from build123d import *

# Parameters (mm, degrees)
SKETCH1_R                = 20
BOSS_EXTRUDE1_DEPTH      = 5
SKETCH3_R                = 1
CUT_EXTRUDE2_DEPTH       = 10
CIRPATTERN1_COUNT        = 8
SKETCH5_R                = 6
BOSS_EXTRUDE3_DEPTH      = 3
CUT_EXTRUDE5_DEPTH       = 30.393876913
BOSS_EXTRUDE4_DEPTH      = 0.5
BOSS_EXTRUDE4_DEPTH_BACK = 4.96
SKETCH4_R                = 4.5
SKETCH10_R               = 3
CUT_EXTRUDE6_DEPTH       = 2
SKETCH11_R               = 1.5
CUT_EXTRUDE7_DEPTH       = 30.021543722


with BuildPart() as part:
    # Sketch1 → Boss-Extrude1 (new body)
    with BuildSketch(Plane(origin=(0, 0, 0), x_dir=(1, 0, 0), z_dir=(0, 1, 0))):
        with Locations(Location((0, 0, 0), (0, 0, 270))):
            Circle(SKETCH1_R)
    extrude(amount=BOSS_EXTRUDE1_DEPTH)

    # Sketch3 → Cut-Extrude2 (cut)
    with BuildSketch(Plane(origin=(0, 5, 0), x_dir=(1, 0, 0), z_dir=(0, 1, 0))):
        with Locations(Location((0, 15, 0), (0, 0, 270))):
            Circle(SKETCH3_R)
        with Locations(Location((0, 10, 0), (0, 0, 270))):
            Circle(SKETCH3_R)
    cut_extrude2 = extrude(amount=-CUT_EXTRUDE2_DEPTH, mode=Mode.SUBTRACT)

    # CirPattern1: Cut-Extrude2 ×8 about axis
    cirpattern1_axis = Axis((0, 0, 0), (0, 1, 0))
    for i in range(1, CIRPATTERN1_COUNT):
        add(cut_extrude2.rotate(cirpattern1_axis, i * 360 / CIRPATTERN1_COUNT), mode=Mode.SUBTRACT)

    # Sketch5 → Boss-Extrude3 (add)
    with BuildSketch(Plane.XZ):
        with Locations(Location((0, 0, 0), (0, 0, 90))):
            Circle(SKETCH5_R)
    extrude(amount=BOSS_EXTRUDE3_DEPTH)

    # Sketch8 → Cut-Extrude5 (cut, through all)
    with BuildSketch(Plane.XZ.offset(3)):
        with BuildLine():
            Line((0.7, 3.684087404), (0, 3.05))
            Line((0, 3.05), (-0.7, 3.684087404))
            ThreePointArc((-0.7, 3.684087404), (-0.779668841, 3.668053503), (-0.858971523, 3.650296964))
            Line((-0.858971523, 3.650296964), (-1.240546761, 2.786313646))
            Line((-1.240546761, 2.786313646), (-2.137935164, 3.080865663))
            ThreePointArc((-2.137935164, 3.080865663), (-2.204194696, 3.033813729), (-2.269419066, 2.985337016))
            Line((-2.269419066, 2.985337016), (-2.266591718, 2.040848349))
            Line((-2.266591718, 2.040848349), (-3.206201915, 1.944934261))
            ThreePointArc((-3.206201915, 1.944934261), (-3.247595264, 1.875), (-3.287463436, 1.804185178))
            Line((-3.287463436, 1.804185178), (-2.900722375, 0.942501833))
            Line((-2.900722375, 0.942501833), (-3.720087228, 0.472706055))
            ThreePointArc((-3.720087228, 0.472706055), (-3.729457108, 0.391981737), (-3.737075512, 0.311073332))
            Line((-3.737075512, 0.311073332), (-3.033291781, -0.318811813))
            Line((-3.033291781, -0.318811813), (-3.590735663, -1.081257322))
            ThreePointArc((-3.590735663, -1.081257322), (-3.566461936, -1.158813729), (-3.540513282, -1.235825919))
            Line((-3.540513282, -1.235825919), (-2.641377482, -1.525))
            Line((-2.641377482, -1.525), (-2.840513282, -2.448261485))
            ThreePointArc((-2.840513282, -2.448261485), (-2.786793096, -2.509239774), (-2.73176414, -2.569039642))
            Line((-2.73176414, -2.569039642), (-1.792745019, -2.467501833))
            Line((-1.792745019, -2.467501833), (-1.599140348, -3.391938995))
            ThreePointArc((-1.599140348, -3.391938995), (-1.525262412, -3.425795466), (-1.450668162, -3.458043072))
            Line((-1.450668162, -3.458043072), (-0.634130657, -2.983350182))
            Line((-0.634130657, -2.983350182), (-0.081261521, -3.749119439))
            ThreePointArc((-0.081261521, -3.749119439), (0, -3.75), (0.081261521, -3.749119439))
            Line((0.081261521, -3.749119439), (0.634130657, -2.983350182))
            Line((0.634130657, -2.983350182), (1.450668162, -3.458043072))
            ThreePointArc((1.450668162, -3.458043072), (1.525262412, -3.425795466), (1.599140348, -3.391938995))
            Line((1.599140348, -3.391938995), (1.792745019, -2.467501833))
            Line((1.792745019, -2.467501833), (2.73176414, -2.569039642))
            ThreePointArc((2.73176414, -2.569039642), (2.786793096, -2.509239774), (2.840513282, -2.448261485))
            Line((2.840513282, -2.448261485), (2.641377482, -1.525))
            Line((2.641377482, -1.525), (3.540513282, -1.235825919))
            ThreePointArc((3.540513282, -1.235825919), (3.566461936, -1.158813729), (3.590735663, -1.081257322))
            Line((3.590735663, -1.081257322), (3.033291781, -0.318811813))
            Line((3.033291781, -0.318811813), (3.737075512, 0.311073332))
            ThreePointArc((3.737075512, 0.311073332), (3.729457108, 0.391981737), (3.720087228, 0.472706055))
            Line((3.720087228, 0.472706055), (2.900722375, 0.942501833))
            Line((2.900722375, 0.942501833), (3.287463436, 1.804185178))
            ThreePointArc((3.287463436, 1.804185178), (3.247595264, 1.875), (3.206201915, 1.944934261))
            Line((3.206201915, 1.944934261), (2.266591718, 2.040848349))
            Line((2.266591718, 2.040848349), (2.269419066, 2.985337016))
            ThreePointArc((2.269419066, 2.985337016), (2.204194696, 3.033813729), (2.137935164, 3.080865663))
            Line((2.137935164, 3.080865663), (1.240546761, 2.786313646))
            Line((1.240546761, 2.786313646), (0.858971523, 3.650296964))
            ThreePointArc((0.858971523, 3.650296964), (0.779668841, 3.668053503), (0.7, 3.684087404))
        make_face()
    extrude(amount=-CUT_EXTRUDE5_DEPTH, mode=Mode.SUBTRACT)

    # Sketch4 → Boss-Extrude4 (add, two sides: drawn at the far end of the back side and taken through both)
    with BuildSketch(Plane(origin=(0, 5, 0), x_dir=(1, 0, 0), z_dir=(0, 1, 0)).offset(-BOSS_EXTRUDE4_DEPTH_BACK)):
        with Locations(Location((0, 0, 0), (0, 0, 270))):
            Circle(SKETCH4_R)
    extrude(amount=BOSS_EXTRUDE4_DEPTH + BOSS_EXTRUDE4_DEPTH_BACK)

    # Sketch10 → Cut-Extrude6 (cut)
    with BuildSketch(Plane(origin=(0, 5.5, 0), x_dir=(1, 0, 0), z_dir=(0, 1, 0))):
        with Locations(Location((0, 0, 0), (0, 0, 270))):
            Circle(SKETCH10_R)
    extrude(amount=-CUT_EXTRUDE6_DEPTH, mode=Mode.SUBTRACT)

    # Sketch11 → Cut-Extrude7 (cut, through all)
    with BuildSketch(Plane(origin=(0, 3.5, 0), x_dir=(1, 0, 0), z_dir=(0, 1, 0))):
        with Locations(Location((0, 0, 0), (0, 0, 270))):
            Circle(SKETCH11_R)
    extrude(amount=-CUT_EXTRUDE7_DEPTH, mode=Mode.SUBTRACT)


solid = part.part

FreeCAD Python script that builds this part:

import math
import FreeCAD as App
import Part
import Sketcher
Q = App.Units.Quantity

doc = App.newDocument("Part")
params = doc.addObject("Spreadsheet::Sheet", "Params")
for row, (alias, value) in enumerate([
    ("sketch1_diameter", "40 mm"),
    ("pad1_length", "5 mm"),
    ("sketch2_diameter", "2 mm"),
    ("pocket1_length", "10 mm"),
    ("sketch3_diameter", "12 mm"),
    ("pad2_length", "3 mm"),
    ("sketch4_radius", "3.749999 mm"),
    ("sketch5_diameter", "9 mm"),
    ("pad3_length", "0.5 mm"),
    ("pad3_length2", "4.96 mm"),
    ("sketch6_diameter", "6 mm"),
    ("pocket3_length", "2 mm"),
    ("sketch7_diameter", "3 mm"),
], start=1):
    params.set(f"A{row}", alias)
    params.set(f"B{row}", "=" + value)
    params.setAlias(f"B{row}", alias)

body = doc.addObject("PartDesign::Body", "Body")

# Sketch on XZ plane
sketch1 = body.newObject("Sketcher::SketchObject", "Sketch")
sketch1.AttachmentSupport = (doc.getObject("XZ_Plane"), [""])
sketch1.MapMode = "FlatFace"
sketch1.addGeometry(Part.Circle(App.Vector(0, 0, 0), App.Vector(0, 0, 1), 20), False)
sketch1.addConstraint([
    Sketcher.Constraint("Coincident", 0, 3, -1, 1),
    Sketcher.Constraint("Diameter", 0, Q("40 mm")),
])
sketch1.setExpression("Constraints[1]", "Params.sketch1_diameter")
pad1 = body.newObject("PartDesign::Pad", "Pad")
pad1.Profile = sketch1
pad1.setExpression("Length", "Params.pad1_length")
pad1.Reversed = True

# Sketch on XZ plane
sketch2 = body.newObject("Sketcher::SketchObject", "Sketch001")
sketch2.AttachmentSupport = (doc.getObject("XZ_Plane"), [""])
sketch2.MapMode = "FlatFace"
sketch2.AttachmentOffset = App.Placement(App.Vector(0, 0, -5), App.Rotation())
sketch2.addGeometry([
    Part.Circle(App.Vector(0, -15, 0), App.Vector(0, 0, 1), 1),
    Part.Circle(App.Vector(0, -10, 0), App.Vector(0, 0, 1), 1),
], False)
sketch2.addConstraint([
    Sketcher.Constraint("Equal", 0, 1),
    Sketcher.Constraint("PointOnObject", 0, 3, -2),
    Sketcher.Constraint("PointOnObject", 1, 3, -2),
    Sketcher.Constraint("Diameter", 0, Q("2 mm")),
    Sketcher.Constraint("DistanceY", 0, 3, -1, 1, Q("15 mm")),
    Sketcher.Constraint("DistanceY", 1, 3, -1, 1, Q("10 mm")),
])
sketch2.setExpression("Constraints[3]", "Params.sketch2_diameter")
pocket1 = body.newObject("PartDesign::Pocket", "Pocket")
pocket1.Profile = sketch2
pocket1.setExpression("Length", "Params.pocket1_length")
pocket1.Reversed = True
doc.recompute()

polarpattern = body.newObject("PartDesign::PolarPattern", "PolarPattern")
polarpattern.Originals = [pocket1]
polarpattern.Axis = (doc.getObject("Y_Axis"), [""])
polarpattern.Angle = 360
polarpattern.Occurrences = 8
body.Tip = polarpattern

# Sketch on XZ plane
sketch3 = body.newObject("Sketcher::SketchObject", "Sketch002")
sketch3.AttachmentSupport = (doc.getObject("XZ_Plane"), [""])
sketch3.MapMode = "FlatFace"
sketch3.addGeometry(Part.Circle(App.Vector(0, 0, 0), App.Vector(0, 0, 1), 6), False)
sketch3.addConstraint([
    Sketcher.Constraint("Coincident", 0, 3, -1, 1),
    Sketcher.Constraint("Diameter", 0, Q("12 mm")),
])
sketch3.setExpression("Constraints[1]", "Params.sketch3_diameter")
pad2 = body.newObject("PartDesign::Pad", "Pad001")
pad2.Profile = sketch3
pad2.setExpression("Length", "Params.pad2_length")

# Sketch on XZ plane
sketch4 = body.newObject("Sketcher::SketchObject", "Sketch003")
sketch4.AttachmentSupport = (doc.getObject("XZ_Plane"), [""])
sketch4.MapMode = "FlatFace"
sketch4.AttachmentOffset = App.Placement(App.Vector(0, 0, 3), App.Rotation())
sketch4.addGeometry([
    Part.LineSegment(App.Vector(0.7, 3.68, 0), App.Vector(0, 3.05, 0)),  # 0
    Part.LineSegment(App.Vector(0, 3.05, 0), App.Vector(-0.7, 3.68, 0)),  # 1
    Part.ArcOfCircle(Part.Circle(App.Vector(0, 0, 0), App.Vector(0, 0, 1), 3.75), math.radians(100.76), math.radians(103.24)),  # 2
    Part.LineSegment(App.Vector(-0.86, 3.65, 0), App.Vector(-1.24, 2.79, 0)),  # 3
    Part.LineSegment(App.Vector(-1.24, 2.79, 0), App.Vector(-2.14, 3.08, 0)),  # 4
    Part.ArcOfCircle(Part.Circle(App.Vector(0, 0, 0), App.Vector(0, 0, 1), 3.75), math.radians(124.76), math.radians(127.24)),  # 5
    Part.LineSegment(App.Vector(-2.27, 2.99, 0), App.Vector(-2.27, 2.04, 0)),  # 6
    Part.LineSegment(App.Vector(-2.27, 2.04, 0), App.Vector(-3.21, 1.94, 0)),  # 7
    Part.ArcOfCircle(Part.Circle(App.Vector(0, 0, 0), App.Vector(0, 0, 1), 3.75), math.radians(148.76), math.radians(151.24)),  # 8
    Part.LineSegment(App.Vector(-3.29, 1.8, 0), App.Vector(-2.9, 0.94, 0)),  # 9
    Part.LineSegment(App.Vector(-2.9, 0.94, 0), App.Vector(-3.72, 0.47, 0)),  # 10
    Part.ArcOfCircle(Part.Circle(App.Vector(0, 0, 0), App.Vector(0, 0, 1), 3.75), math.radians(172.76), math.radians(175.24)),  # 11
    Part.LineSegment(App.Vector(-3.74, 0.31, 0), App.Vector(-3.03, -0.32, 0)),  # 12
    Part.LineSegment(App.Vector(-3.03, -0.32, 0), App.Vector(-3.59, -1.08, 0)),  # 13
    Part.ArcOfCircle(Part.Circle(App.Vector(0, 0, 0), App.Vector(0, 0, 1), 3.75), math.radians(-163.24), math.radians(-160.76)),  # 14
    Part.LineSegment(App.Vector(-3.54, -1.24, 0), App.Vector(-2.64, -1.52, 0)),  # 15
    Part.LineSegment(App.Vector(-2.64, -1.52, 0), App.Vector(-2.84, -2.45, 0)),  # 16
    Part.ArcOfCircle(Part.Circle(App.Vector(0, 0, 0), App.Vector(0, 0, 1), 3.75), math.radians(-139.24), math.radians(-136.76)),  # 17
    Part.LineSegment(App.Vector(-2.73, -2.57, 0), App.Vector(-1.79, -2.47, 0)),  # 18
    Part.LineSegment(App.Vector(-1.79, -2.47, 0), App.Vector(-1.6, -3.39, 0)),  # 19
    Part.ArcOfCircle(Part.Circle(App.Vector(0, 0, 0), App.Vector(0, 0, 1), 3.75), math.radians(-115.24), math.radians(-112.76)),  # 20
    Part.LineSegment(App.Vector(-1.45, -3.46, 0), App.Vector(-0.63, -2.98, 0)),  # 21
    Part.LineSegment(App.Vector(-0.63, -2.98, 0), App.Vector(-0.08, -3.75, 0)),  # 22
    Part.ArcOfCircle(Part.Circle(App.Vector(0, 0, 0), App.Vector(0, 0, 1), 3.75), math.radians(-91.24), math.radians(-88.76)),  # 23
    Part.LineSegment(App.Vector(0.08, -3.75, 0), App.Vector(0.63, -2.98, 0)),  # 24
    Part.LineSegment(App.Vector(0.63, -2.98, 0), App.Vector(1.45, -3.46, 0)),  # 25
    Part.ArcOfCircle(Part.Circle(App.Vector(0, 0, 0), App.Vector(0, 0, 1), 3.75), math.radians(-67.24), math.radians(-64.76)),  # 26
    Part.LineSegment(App.Vector(1.6, -3.39, 0), App.Vector(1.79, -2.47, 0)),  # 27
    Part.LineSegment(App.Vector(1.79, -2.47, 0), App.Vector(2.73, -2.57, 0)),  # 28
    Part.ArcOfCircle(Part.Circle(App.Vector(0, 0, 0), App.Vector(0, 0, 1), 3.75), math.radians(-43.24), math.radians(-40.76)),  # 29
    Part.LineSegment(App.Vector(2.84, -2.45, 0), App.Vector(2.64, -1.52, 0)),  # 30
    Part.LineSegment(App.Vector(2.64, -1.52, 0), App.Vector(3.54, -1.24, 0)),  # 31
    Part.ArcOfCircle(Part.Circle(App.Vector(0, 0, 0), App.Vector(0, 0, 1), 3.75), math.radians(-19.24), math.radians(-16.76)),  # 32
    Part.LineSegment(App.Vector(3.59, -1.08, 0), App.Vector(3.03, -0.32, 0)),  # 33
    Part.LineSegment(App.Vector(3.03, -0.32, 0), App.Vector(3.74, 0.31, 0)),  # 34
    Part.ArcOfCircle(Part.Circle(App.Vector(0, 0, 0), App.Vector(0, 0, 1), 3.75), math.radians(4.76), math.radians(7.24)),  # 35
    Part.LineSegment(App.Vector(3.72, 0.47, 0), App.Vector(2.9, 0.94, 0)),  # 36
    Part.LineSegment(App.Vector(2.9, 0.94, 0), App.Vector(3.29, 1.8, 0)),  # 37
    Part.ArcOfCircle(Part.Circle(App.Vector(0, 0, 0), App.Vector(0, 0, 1), 3.75), math.radians(28.76), math.radians(31.24)),  # 38
    Part.LineSegment(App.Vector(3.21, 1.94, 0), App.Vector(2.27, 2.04, 0)),  # 39
    Part.LineSegment(App.Vector(2.27, 2.04, 0), App.Vector(2.27, 2.99, 0)),  # 40
    Part.ArcOfCircle(Part.Circle(App.Vector(0, 0, 0), App.Vector(0, 0, 1), 3.75), math.radians(52.76), math.radians(55.24)),  # 41
    Part.LineSegment(App.Vector(2.14, 3.08, 0), App.Vector(1.24, 2.79, 0)),  # 42
    Part.LineSegment(App.Vector(1.24, 2.79, 0), App.Vector(0.86, 3.65, 0)),  # 43
    Part.ArcOfCircle(Part.Circle(App.Vector(0, 0, 0), App.Vector(0, 0, 1), 3.75), math.radians(76.76), math.radians(79.24)),  # 44
], False)
sketch4.addConstraint([
    Sketcher.Constraint("Coincident", 0, 2, 1, 1),
    Sketcher.Constraint("Coincident", 1, 2, 2, 1),
    Sketcher.Constraint("Coincident", 2, 2, 3, 1),
    Sketcher.Constraint("Coincident", 3, 2, 4, 1),
    Sketcher.Constraint("Coincident", 4, 2, 5, 1),
    Sketcher.Constraint("Coincident", 5, 2, 6, 1),
    Sketcher.Constraint("Coincident", 6, 2, 7, 1),
    Sketcher.Constraint("Coincident", 7, 2, 8, 1),
    Sketcher.Constraint("Coincident", 8, 2, 9, 1),
    Sketcher.Constraint("Coincident", 9, 2, 10, 1),
    Sketcher.Constraint("Coincident", 10, 2, 11, 1),
    Sketcher.Constraint("Coincident", 11, 2, 12, 1),
    Sketcher.Constraint("Coincident", 12, 2, 13, 1),
    Sketcher.Constraint("Coincident", 13, 2, 14, 1),
    Sketcher.Constraint("Coincident", 14, 2, 15, 1),
    Sketcher.Constraint("Coincident", 15, 2, 16, 1),
    Sketcher.Constraint("Coincident", 16, 2, 17, 1),
    Sketcher.Constraint("Coincident", 17, 2, 18, 1),
    Sketcher.Constraint("Coincident", 18, 2, 19, 1),
    Sketcher.Constraint("Coincident", 19, 2, 20, 1),
    Sketcher.Constraint("Coincident", 20, 2, 21, 1),
    Sketcher.Constraint("Coincident", 21, 2, 22, 1),
    Sketcher.Constraint("Coincident", 22, 2, 23, 1),
    Sketcher.Constraint("Coincident", 23, 2, 24, 1),
    Sketcher.Constraint("Coincident", 24, 2, 25, 1),
    Sketcher.Constraint("Coincident", 25, 2, 26, 1),
    Sketcher.Constraint("Coincident", 26, 2, 27, 1),
    Sketcher.Constraint("Coincident", 27, 2, 28, 1),
    Sketcher.Constraint("Coincident", 28, 2, 29, 1),
    Sketcher.Constraint("Coincident", 29, 2, 30, 1),
    Sketcher.Constraint("Coincident", 30, 2, 31, 1),
    Sketcher.Constraint("Coincident", 31, 2, 32, 1),
    Sketcher.Constraint("Coincident", 32, 2, 33, 1),
    Sketcher.Constraint("Coincident", 33, 2, 34, 1),
    Sketcher.Constraint("Coincident", 34, 2, 35, 1),
    Sketcher.Constraint("Coincident", 35, 2, 36, 1),
    Sketcher.Constraint("Coincident", 36, 2, 37, 1),
    Sketcher.Constraint("Coincident", 37, 2, 38, 1),
    Sketcher.Constraint("Coincident", 38, 2, 39, 1),
    Sketcher.Constraint("Coincident", 39, 2, 40, 1),
    Sketcher.Constraint("Coincident", 40, 2, 41, 1),
    Sketcher.Constraint("Coincident", 41, 2, 42, 1),
    Sketcher.Constraint("Coincident", 42, 2, 43, 1),
    Sketcher.Constraint("Coincident", 43, 2, 44, 1),
    Sketcher.Constraint("Coincident", 44, 2, 0, 1),
    Sketcher.Constraint("Coincident", 2, 3, -1, 1),
    Sketcher.Constraint("Coincident", 5, 3, -1, 1),
    Sketcher.Constraint("Coincident", 8, 3, -1, 1),
    Sketcher.Constraint("Coincident", 11, 3, -1, 1),
    Sketcher.Constraint("Coincident", 14, 3, -1, 1),
    Sketcher.Constraint("Coincident", 17, 3, -1, 1),
    Sketcher.Constraint("Coincident", 20, 3, -1, 1),
    Sketcher.Constraint("Coincident", 23, 3, -1, 1),
    Sketcher.Constraint("Coincident", 26, 3, -1, 1),
    Sketcher.Constraint("Coincident", 29, 3, -1, 1),
    Sketcher.Constraint("Coincident", 32, 3, -1, 1),
    Sketcher.Constraint("Coincident", 35, 3, -1, 1),
    Sketcher.Constraint("Coincident", 38, 3, -1, 1),
    Sketcher.Constraint("Coincident", 41, 3, -1, 1),
    Sketcher.Constraint("Coincident", 44, 3, -1, 1),
    Sketcher.Constraint("Equal", 2, 5),
    Sketcher.Constraint("Equal", 5, 8),
    Sketcher.Constraint("Equal", 5, 11),
    Sketcher.Constraint("Equal", 8, 14),
    Sketcher.Constraint("Equal", 14, 17),
    Sketcher.Constraint("Equal", 17, 20),
    Sketcher.Constraint("Equal", 20, 23),
    Sketcher.Constraint("Equal", 23, 26),
    Sketcher.Constraint("Equal", 26, 29),
    Sketcher.Constraint("Equal", 29, 32),
    Sketcher.Constraint("Equal", 29, 35),
    Sketcher.Constraint("Equal", 32, 38),
    Sketcher.Constraint("Equal", 38, 41),
    Sketcher.Constraint("Equal", 41, 44),
    Sketcher.Constraint("Symmetric", 21, 2, 24, 2, -2),
    Sketcher.Constraint("Symmetric", 18, 2, 27, 2, -2),
    Sketcher.Constraint("Symmetric", 15, 2, 30, 2, -2),
    Sketcher.Constraint("Symmetric", 12, 2, 33, 2, -2),
    Sketcher.Constraint("Symmetric", 9, 2, 36, 2, -2),
    Sketcher.Constraint("Symmetric", 6, 2, 39, 2, -2),
    Sketcher.Constraint("Symmetric", 3, 2, 42, 2, -2),
    Sketcher.Constraint("PointOnObject", 0, 2, -2),
    Sketcher.Constraint("Horizontal", 22, 2, 23, 2),
    Sketcher.Constraint("Horizontal", 20, 2, 25, 2),
    Sketcher.Constraint("Horizontal", 19, 2, 26, 2),
    Sketcher.Constraint("Horizontal", 17, 2, 28, 2),
    Sketcher.Constraint("Horizontal", 16, 2, 29, 2),
    Sketcher.Constraint("Horizontal", 14, 2, 31, 2),
    Sketcher.Constraint("Horizontal", 13, 2, 32, 2),
    Sketcher.Constraint("Horizontal", 11, 2, 34, 2),
    Sketcher.Constraint("Horizontal", 10, 2, 35, 2),
    Sketcher.Constraint("Horizontal", 8, 2, 37, 2),
    Sketcher.Constraint("Horizontal", 7, 2, 38, 2),
    Sketcher.Constraint("Horizontal", 5, 2, 40, 2),
    Sketcher.Constraint("Horizontal", 4, 2, 41, 2),
    Sketcher.Constraint("Horizontal", 2, 2, 43, 2),
    Sketcher.Constraint("Horizontal", 1, 2, 44, 2),
    Sketcher.Constraint("Equal", 1, 3),
    Sketcher.Constraint("Equal", 3, 4),
    Sketcher.Constraint("Equal", 4, 6),
    Sketcher.Constraint("Equal", 6, 7),
    Sketcher.Constraint("Equal", 7, 9),
    Sketcher.Constraint("Equal", 9, 10),
    Sketcher.Constraint("Equal", 10, 12),
    Sketcher.Constraint("Equal", 12, 13),
    Sketcher.Constraint("Equal", 13, 15),
    Sketcher.Constraint("Equal", 15, 16),
    Sketcher.Constraint("Equal", 16, 18),
    Sketcher.Constraint("Equal", 18, 19),
    Sketcher.Constraint("Equal", 19, 21),
    Sketcher.Constraint("Equal", 21, 22),
    Sketcher.Constraint("Radius", 2, Q("3.749999 mm")),
    Sketcher.Constraint("DistanceX", 1, 2, -1, 1, Q("0.7 mm")),
    Sketcher.Constraint("DistanceX", 14, 2, 16, 2, Q("0.7 mm")),
    Sketcher.Constraint("DistanceY", -1, 1, 0, 2, Q("3.05 mm")),
    Sketcher.Constraint("DistanceY", 15, 2, -1, 1, Q("1.525 mm")),
    Sketcher.Constraint("DistanceX", 7, 2, -1, 1, Q("3.206202 mm")),
    Sketcher.Constraint("DistanceY", -1, 1, 9, 2, Q("0.942502 mm")),
    Sketcher.Constraint("DistanceY", 18, 2, -1, 1, Q("2.467502 mm")),
    Sketcher.Constraint("DistanceY", 14, 2, 11, 2, Q("1.546899 mm")),
    Sketcher.Constraint("DistanceY", 19, 2, 17, 2, Q("0.822899 mm")),
    Sketcher.Constraint("DistanceX", 19, 2, 23, 2, Q("1.680402 mm")),
    Sketcher.Constraint("DistanceX", 20, 2, 24, 2, Q("2.084799 mm")),
    Sketcher.Constraint("DistanceX", 2, 2, -1, 1, Q("0.858972 mm")),
    Sketcher.Constraint("DistanceX", 5, 2, -1, 1, Q("2.269419 mm")),
    Sketcher.Constraint("DistanceX", 12, 2, -1, 1, Q("3.033292 mm")),
    Sketcher.Constraint("DistanceX", 4, 2, 3, 2, Q("0.897388 mm")),
    Sketcher.Constraint("DistanceX", 8, 2, 7, 2, Q("0.081262 mm")),
])
sketch4.setExpression("Constraints[111]", "Params.sketch4_radius")
pocket2 = body.newObject("PartDesign::Pocket", "Pocket001")
pocket2.Profile = sketch4
pocket2.Type = "ThroughAll"

# Sketch on XZ plane
sketch5 = body.newObject("Sketcher::SketchObject", "Sketch004")
sketch5.AttachmentSupport = (doc.getObject("XZ_Plane"), [""])
sketch5.MapMode = "FlatFace"
sketch5.AttachmentOffset = App.Placement(App.Vector(0, 0, -5), App.Rotation())
sketch5.addGeometry(Part.Circle(App.Vector(0, 0, 0), App.Vector(0, 0, 1), 4.5), False)
sketch5.addConstraint([
    Sketcher.Constraint("Coincident", 0, 3, -1, 1),
    Sketcher.Constraint("Diameter", 0, Q("9 mm")),
])
sketch5.setExpression("Constraints[1]", "Params.sketch5_diameter")
pad3 = body.newObject("PartDesign::Pad", "Pad002")
pad3.Profile = sketch5
pad3.Type = "TwoLengths"
pad3.setExpression("Length", "Params.pad3_length")
pad3.setExpression("Length2", "Params.pad3_length2")
pad3.Reversed = True

# Sketch on XZ plane
sketch6 = body.newObject("Sketcher::SketchObject", "Sketch005")
sketch6.AttachmentSupport = (doc.getObject("XZ_Plane"), [""])
sketch6.MapMode = "FlatFace"
sketch6.AttachmentOffset = App.Placement(App.Vector(0, 0, -5.5), App.Rotation())
sketch6.addGeometry(Part.Circle(App.Vector(0, 0, 0), App.Vector(0, 0, 1), 3), False)
sketch6.addConstraint([
    Sketcher.Constraint("Coincident", 0, 3, -1, 1),
    Sketcher.Constraint("Diameter", 0, Q("6 mm")),
])
sketch6.setExpression("Constraints[1]", "Params.sketch6_diameter")
pocket3 = body.newObject("PartDesign::Pocket", "Pocket002")
pocket3.Profile = sketch6
pocket3.setExpression("Length", "Params.pocket3_length")
pocket3.Reversed = True

# Sketch on XZ plane
sketch7 = body.newObject("Sketcher::SketchObject", "Sketch006")
sketch7.AttachmentSupport = (doc.getObject("XZ_Plane"), [""])
sketch7.MapMode = "FlatFace"
sketch7.AttachmentOffset = App.Placement(App.Vector(0, 0, -3.5), App.Rotation())
sketch7.addGeometry(Part.Circle(App.Vector(0, 0, 0), App.Vector(0, 0, 1), 1.5), False)
sketch7.addConstraint([
    Sketcher.Constraint("Coincident", 0, 3, -1, 1),
    Sketcher.Constraint("Diameter", 0, Q("3 mm")),
])
sketch7.setExpression("Constraints[1]", "Params.sketch7_diameter")
pocket4 = body.newObject("PartDesign::Pocket", "Pocket003")
pocket4.Profile = sketch7
pocket4.Type = "ThroughAll"
pocket4.Reversed = True

doc.recompute()
